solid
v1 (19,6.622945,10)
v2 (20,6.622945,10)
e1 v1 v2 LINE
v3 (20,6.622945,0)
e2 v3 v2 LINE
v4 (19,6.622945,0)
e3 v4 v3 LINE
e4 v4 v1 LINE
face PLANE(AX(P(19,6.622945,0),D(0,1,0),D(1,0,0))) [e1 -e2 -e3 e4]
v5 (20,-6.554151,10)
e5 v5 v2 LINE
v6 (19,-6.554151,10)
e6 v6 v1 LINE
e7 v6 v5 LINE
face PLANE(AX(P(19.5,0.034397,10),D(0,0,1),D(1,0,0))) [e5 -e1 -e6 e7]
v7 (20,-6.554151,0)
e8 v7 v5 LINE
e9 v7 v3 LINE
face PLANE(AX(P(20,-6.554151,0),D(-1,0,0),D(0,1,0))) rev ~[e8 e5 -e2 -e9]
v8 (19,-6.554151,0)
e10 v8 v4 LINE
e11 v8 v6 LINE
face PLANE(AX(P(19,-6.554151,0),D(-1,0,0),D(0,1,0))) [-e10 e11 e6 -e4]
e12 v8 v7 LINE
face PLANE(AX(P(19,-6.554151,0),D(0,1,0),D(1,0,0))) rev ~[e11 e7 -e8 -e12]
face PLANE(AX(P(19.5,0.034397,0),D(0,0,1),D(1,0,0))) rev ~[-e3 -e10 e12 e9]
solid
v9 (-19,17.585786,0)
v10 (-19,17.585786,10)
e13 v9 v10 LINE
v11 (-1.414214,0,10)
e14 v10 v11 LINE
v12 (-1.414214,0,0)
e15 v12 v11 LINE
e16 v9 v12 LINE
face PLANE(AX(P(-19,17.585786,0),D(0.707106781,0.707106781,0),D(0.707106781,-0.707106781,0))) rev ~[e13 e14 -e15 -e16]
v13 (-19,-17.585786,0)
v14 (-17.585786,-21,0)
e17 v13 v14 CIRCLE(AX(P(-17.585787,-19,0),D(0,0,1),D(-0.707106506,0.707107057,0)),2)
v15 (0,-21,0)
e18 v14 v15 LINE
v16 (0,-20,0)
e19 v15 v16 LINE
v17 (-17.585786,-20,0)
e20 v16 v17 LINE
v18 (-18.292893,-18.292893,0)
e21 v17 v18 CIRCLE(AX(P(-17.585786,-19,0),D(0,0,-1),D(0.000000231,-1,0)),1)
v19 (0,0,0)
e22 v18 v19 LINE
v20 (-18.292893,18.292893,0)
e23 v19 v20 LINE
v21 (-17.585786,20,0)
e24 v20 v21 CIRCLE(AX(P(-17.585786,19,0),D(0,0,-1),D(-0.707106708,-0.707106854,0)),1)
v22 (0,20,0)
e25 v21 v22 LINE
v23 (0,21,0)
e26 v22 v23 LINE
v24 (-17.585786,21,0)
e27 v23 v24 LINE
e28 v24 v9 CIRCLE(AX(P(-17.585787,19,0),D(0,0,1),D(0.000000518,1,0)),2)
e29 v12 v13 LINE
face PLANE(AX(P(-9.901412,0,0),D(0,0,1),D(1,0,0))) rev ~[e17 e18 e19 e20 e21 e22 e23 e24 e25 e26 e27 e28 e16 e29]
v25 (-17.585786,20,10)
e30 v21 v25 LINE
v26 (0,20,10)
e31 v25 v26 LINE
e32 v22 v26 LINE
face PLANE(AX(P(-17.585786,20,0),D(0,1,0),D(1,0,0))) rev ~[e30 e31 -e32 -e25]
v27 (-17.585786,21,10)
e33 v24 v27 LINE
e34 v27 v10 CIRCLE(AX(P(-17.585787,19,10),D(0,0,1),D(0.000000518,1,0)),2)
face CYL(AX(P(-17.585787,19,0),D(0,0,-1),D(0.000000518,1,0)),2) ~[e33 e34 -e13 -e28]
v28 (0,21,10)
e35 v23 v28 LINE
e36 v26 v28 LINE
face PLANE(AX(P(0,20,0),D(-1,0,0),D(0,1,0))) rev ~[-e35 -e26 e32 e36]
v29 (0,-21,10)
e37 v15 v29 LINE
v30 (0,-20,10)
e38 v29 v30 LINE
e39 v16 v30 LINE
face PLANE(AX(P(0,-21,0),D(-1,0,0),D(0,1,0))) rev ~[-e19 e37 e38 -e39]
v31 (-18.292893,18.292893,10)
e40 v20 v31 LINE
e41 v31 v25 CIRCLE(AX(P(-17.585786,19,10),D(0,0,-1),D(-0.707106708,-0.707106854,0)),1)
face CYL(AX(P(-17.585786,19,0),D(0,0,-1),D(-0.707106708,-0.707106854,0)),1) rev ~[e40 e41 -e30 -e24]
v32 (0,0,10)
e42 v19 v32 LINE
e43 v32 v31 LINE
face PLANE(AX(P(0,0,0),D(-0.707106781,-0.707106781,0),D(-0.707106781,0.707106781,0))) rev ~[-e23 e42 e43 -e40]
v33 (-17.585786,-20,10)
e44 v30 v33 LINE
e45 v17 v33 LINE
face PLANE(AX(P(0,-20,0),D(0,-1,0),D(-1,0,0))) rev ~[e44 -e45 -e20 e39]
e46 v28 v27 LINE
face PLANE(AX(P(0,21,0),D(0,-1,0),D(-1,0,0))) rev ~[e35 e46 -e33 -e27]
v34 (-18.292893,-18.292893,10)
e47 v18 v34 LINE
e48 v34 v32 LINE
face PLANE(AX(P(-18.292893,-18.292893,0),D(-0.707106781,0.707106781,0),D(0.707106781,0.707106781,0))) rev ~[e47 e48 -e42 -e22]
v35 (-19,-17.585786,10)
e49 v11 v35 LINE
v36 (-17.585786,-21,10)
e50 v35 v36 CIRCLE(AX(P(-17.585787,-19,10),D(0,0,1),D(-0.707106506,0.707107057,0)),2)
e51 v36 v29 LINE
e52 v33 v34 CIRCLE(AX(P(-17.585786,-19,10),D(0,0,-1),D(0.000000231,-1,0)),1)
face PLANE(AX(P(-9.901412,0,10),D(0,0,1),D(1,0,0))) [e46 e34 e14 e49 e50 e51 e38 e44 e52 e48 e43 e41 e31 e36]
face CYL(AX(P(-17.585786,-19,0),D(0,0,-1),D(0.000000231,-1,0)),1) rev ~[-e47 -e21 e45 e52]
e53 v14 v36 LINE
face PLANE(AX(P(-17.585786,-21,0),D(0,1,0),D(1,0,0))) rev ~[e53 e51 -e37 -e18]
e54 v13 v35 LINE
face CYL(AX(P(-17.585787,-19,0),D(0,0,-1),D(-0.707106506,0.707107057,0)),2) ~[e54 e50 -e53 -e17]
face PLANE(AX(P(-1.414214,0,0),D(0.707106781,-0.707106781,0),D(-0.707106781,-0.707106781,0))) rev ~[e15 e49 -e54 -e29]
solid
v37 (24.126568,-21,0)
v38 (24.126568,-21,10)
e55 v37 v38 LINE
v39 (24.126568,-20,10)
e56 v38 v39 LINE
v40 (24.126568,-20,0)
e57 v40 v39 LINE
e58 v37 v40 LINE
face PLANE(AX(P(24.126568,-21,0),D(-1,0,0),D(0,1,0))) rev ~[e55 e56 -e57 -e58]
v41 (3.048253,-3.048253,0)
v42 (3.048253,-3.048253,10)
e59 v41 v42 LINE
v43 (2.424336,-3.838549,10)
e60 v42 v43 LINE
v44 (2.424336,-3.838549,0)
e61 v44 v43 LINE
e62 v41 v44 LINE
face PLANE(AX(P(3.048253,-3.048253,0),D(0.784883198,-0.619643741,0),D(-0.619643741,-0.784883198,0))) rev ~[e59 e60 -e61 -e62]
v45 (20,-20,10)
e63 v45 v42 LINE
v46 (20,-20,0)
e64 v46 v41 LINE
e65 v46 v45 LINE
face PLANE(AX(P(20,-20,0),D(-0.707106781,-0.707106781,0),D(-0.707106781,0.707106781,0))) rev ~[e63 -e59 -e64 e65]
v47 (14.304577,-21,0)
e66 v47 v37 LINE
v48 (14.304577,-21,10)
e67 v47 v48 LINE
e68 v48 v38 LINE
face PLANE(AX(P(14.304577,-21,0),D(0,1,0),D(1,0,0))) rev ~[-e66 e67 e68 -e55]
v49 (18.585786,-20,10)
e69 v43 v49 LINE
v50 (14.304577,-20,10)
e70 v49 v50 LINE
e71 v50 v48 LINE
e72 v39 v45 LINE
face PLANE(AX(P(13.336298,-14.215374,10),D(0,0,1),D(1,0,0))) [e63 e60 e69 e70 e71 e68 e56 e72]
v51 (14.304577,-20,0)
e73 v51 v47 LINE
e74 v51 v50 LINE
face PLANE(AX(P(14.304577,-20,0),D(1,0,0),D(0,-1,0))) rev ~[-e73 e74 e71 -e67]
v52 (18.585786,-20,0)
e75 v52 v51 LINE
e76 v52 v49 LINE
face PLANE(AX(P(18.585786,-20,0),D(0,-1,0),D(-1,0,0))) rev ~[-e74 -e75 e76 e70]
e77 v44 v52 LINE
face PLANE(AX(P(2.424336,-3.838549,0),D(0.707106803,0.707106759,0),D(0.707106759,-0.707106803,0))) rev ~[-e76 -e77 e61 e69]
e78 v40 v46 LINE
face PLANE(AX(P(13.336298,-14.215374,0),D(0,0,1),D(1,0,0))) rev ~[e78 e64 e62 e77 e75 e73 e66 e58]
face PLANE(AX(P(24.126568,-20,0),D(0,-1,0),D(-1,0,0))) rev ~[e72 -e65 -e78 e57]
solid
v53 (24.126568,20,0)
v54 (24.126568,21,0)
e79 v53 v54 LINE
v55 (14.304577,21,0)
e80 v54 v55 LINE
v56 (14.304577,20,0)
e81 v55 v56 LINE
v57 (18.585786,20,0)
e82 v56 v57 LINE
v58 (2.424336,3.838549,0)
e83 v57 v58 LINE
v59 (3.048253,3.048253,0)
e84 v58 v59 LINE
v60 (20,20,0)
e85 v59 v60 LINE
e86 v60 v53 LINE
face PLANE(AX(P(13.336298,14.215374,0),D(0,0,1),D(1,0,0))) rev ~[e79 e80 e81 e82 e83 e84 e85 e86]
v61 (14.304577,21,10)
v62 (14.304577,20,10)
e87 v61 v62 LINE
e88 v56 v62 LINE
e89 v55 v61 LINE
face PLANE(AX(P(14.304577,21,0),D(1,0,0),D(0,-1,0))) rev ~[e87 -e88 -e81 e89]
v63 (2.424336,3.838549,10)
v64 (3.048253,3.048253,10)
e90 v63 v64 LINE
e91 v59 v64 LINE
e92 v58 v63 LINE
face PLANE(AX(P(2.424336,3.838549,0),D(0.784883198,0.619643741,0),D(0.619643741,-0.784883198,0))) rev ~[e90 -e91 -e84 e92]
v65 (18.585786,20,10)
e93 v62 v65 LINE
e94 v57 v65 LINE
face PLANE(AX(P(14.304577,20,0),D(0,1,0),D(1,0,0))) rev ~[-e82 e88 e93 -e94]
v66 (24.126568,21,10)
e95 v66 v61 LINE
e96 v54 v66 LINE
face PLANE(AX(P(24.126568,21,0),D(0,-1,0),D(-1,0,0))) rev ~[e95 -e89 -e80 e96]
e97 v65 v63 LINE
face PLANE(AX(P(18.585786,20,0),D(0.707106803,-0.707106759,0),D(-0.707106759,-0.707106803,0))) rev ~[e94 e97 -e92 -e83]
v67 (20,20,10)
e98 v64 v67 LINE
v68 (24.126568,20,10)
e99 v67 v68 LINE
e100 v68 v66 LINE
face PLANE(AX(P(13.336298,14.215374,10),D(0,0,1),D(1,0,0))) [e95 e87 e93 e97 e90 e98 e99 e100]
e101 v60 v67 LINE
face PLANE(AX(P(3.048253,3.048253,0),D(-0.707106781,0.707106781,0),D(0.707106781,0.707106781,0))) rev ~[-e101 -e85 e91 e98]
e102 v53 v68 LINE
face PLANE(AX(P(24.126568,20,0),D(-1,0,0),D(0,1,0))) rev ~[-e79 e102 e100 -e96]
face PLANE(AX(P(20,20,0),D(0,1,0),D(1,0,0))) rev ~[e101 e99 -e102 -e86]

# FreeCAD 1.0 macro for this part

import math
import FreeCAD as App
import Part
import Sketcher
from FreeCAD import Vector


def add_polygon(sketch, points):
    """Adds a closed chain of lines whose ends are joined by coincident constraints."""
    first, n = sketch.GeometryCount, len(points)
    for a, b in zip(points, points[1:] + points[:1]):
        sketch.addGeometry(Part.LineSegment(App.Vector(*a, 0), App.Vector(*b, 0)), False)
    for i in range(n):
        sketch.addConstraint(Sketcher.Constraint("Coincident", first + i, 2, first + (i + 1) % n, 1))

doc = App.newDocument("Part")
params = doc.addObject("Spreadsheet::Sheet", "Params")
for row, (alias, value) in enumerate([
    ("sketch1_radius", "1 mm"),
    ("sketch1_radius2", "2 mm"),
    ("pad1_length", "10 mm"),
], start=1):
    params.set(f"A{row}", alias)
    params.set(f"B{row}", "=" + value)
    params.setAlias(f"B{row}", alias)

body = doc.addObject("PartDesign::Body", "Body")
body.AllowCompound = True

# Sketch on XY plane
sketch1 = doc.addObject("Sketcher::SketchObject", "Sketch")
body.addObject(sketch1)
sketch1.AttachmentSupport = (doc.XY_Plane, [""])
sketch1.MapMode = "FlatFace"
add_polygon(sketch1, [(19, 6.6), (19, -6.6), (20, -6.6), (20, 6.6)])  # lines 0-3
sketch1.addGeometry(Part.ArcOfCircle(Part.Circle(Vector(-17.6, -19, 0), Vector(0, 0, 1), 1), math.radians(135), math.radians(270)), False)  # 4
sketch1.addGeometry(Part.LineSegment(Vector(-18.3, -18.3, 0), Vector(0, 0, 0)), False)  # 5
sketch1.addGeometry(Part.LineSegment(Vector(0, 0, 0), Vector(-18.3, 18.3, 0)), False)  # 6
sketch1.addGeometry(Part.ArcOfCircle(Part.Circle(Vector(-17.6, 19, 0), Vector(0, 0, 1), 1), math.radians(90), math.radians(225)), False)  # 7
sketch1.addGeometry(Part.LineSegment(Vector(-17.6, 20, 0), Vector(0, 20, 0)), False)  # 8
sketch1.addGeometry(Part.LineSegment(Vector(0, 20, 0), Vector(0, 21, 0)), False)  # 9
sketch1.addGeometry(Part.LineSegment(Vector(0, 21, 0), Vector(-17.6, 21, 0)), False)  # 10
sketch1.addGeometry(Part.ArcOfCircle(Part.Circle(Vector(-17.6, 19, 0), Vector(0, 0, 1), 2), math.radians(90), math.radians(225)), False)  # 11
sketch1.addGeometry(Part.LineSegment(Vector(-19, 17.6, 0), Vector(-1.4, 0, 0)), False)  # 12
sketch1.addGeometry(Part.LineSegment(Vector(-1.4, 0, 0), Vector(-19, -17.6, 0)), False)  # 13
sketch1.addGeometry(Part.ArcOfCircle(Part.Circle(Vector(-17.6, -19, 0), Vector(0, 0, 1), 2), math.radians(135), math.radians(270)), False)  # 14
sketch1.addGeometry(Part.LineSegment(Vector(-17.6, -21, 0), Vector(0, -21, 0)), False)  # 15
sketch1.addGeometry(Part.LineSegment(Vector(0, -21, 0), Vector(0, -20, 0)), False)  # 16
sketch1.addGeometry(Part.LineSegment(Vector(0, -20, 0), Vector(-17.6, -20, 0)), False)  # 17
add_polygon(sketch1, [(2.4, 3.8), (3, 3), (20, 20), (24.1, 20), (24.1, 21), (14.3, 21), (14.3, 20), (18.6, 20)])  # lines 18-25
add_polygon(sketch1, [(20, -20), (3, -3), (2.4, -3.8), (18.6, -20), (14.3, -20), (14.3, -21), (24.1, -21), (24.1, -20)])  # lines 26-33
sketch1.addConstraint([
    Sketcher.Constraint("Tangent", 4, 1, 5, 1),
    Sketcher.Constraint("Coincident", 5, 2, 6, 1),
    Sketcher.Constraint("Tangent", 6, 2, 7, 2),
    Sketcher.Constraint("Tangent", 7, 1, 8, 1),
    Sketcher.Constraint("Coincident", 8, 2, 9, 1),
    Sketcher.Constraint("Coincident", 9, 2, 10, 1),
    Sketcher.Constraint("Tangent", 10, 2, 11, 1),
    Sketcher.Constraint("Tangent", 11, 2, 12, 1),
    Sketcher.Constraint("Coincident", 12, 2, 13, 1),
    Sketcher.Constraint("Tangent", 13, 2, 14, 1),
    Sketcher.Constraint("Tangent", 14, 2, 15, 1),
    Sketcher.Constraint("Coincident", 15, 2, 16, 1),
    Sketcher.Constraint("Coincident", 16, 2, 17, 1),
    Sketcher.Constraint("Tangent", 17, 2, 4, 2),
    Sketcher.Constraint("Vertical", 0),
    Sketcher.Constraint("Horizontal", 1),
    Sketcher.Constraint("Vertical", 2),
    Sketcher.Constraint("Horizontal", 3),
    Sketcher.Constraint("Horizontal", 8),
    Sketcher.Constraint("Vertical", 9),
    Sketcher.Constraint("Horizontal", 10),
    Sketcher.Constraint("Horizontal", 15),
    Sketcher.Constraint("Vertical", 16),
    Sketcher.Constraint("Horizontal", 17),
    Sketcher.Constraint("Horizontal", 20),
    Sketcher.Constraint("Vertical", 21),
    Sketcher.Constraint("Horizontal", 22),
    Sketcher.Constraint("Vertical", 23),
    Sketcher.Constraint("Horizontal", 24),
    Sketcher.Constraint("Horizontal", 29),
    Sketcher.Constraint("Vertical", 30),
    Sketcher.Constraint("Horizontal", 31),
    Sketcher.Constraint("Vertical", 32),
    Sketcher.Constraint("Horizontal", 33),
    Sketcher.Constraint("Coincident", 5, 2, -1, 1),
    Sketcher.Constraint("Coincident", 11, 3, 7, 3),
    Sketcher.Constraint("Coincident", 14, 3, 4, 3),
    Sketcher.Constraint("Equal", 4, 7),
    Sketcher.Constraint("Equal", 11, 14),
    Sketcher.Constraint("Symmetric", 9, 2, 15, 2, -1, 1),
    Sketcher.Constraint("Symmetric", 11, 2, 13, 2, -1),
    Sketcher.Constraint("Symmetric", 18, 2, 26, 2, -1),
    Sketcher.Constraint("Symmetric", 25, 2, 27, 2, -1),
    Sketcher.Constraint("Symmetric", 24, 2, 28, 2, -1),
    Sketcher.Constraint("Symmetric", 22, 2, 30, 2, -1),
    Sketcher.Constraint("Symmetric", 20, 2, 32, 2, -1),
    Sketcher.Constraint("PointOnObject", 8, 2, -2),
    Sketcher.Constraint("Perpendicular", 5, 6),
    Sketcher.Constraint("Parallel", 6, 12),
    Sketcher.Constraint("Parallel", 13, 19),
    Sketcher.Constraint("Parallel", 19, 25),
    Sketcher.Constraint("Perpendicular", 25, 26),
    Sketcher.Constraint("Horizontal", 8, 2, 19, 2),
    Sketcher.Constraint("Horizontal", 10, 2, 21, 2),
    Sketcher.Constraint("Horizontal", 20, 2, 23, 2),
    Sketcher.Constraint("Vertical", 2, 2, 19, 2),
    Sketcher.Constraint("Equal", 3, 9),
    Sketcher.Constraint("Radius", 4, 1.0),
    Sketcher.Constraint("Radius", 11, 2.0),
    Sketcher.Constraint("DistanceY", 4, 3, -1, 1, 19.0),
    Sketcher.Constraint("DistanceX", -1, 1, 0, 2, 19.0),
    Sketcher.Constraint("DistanceX", 22, 2, 22, 1, 9.821991),
    Sketcher.Constraint("DistanceX", 24, 1, 24, 2, 4.281209),
    Sketcher.Constraint("DistanceY", 26, 2, 25, 2, 6.886802),
    Sketcher.Constraint("Distance", 19, 23.973391),
    Sketcher.Constraint("DistanceX", 20, 1, 20, 2, 4.126568),
    Sketcher.Constraint("DistanceY", 0, 2, 0, 1, 13.177095),
    Sketcher.Constraint("DistanceY", 0, 2, -1, 1, 6.554151),
])
sketch1.setExpression("Constraints[77]", "Params.sketch1_radius")
sketch1.setExpression("Constraints[78]", "Params.sketch1_radius2")
pad1 = doc.addObject("PartDesign::Pad", "Pad")
body.addObject(pad1)
pad1.Profile = sketch1
pad1.setExpression("Length", "Params.pad1_length")

doc.recompute()
